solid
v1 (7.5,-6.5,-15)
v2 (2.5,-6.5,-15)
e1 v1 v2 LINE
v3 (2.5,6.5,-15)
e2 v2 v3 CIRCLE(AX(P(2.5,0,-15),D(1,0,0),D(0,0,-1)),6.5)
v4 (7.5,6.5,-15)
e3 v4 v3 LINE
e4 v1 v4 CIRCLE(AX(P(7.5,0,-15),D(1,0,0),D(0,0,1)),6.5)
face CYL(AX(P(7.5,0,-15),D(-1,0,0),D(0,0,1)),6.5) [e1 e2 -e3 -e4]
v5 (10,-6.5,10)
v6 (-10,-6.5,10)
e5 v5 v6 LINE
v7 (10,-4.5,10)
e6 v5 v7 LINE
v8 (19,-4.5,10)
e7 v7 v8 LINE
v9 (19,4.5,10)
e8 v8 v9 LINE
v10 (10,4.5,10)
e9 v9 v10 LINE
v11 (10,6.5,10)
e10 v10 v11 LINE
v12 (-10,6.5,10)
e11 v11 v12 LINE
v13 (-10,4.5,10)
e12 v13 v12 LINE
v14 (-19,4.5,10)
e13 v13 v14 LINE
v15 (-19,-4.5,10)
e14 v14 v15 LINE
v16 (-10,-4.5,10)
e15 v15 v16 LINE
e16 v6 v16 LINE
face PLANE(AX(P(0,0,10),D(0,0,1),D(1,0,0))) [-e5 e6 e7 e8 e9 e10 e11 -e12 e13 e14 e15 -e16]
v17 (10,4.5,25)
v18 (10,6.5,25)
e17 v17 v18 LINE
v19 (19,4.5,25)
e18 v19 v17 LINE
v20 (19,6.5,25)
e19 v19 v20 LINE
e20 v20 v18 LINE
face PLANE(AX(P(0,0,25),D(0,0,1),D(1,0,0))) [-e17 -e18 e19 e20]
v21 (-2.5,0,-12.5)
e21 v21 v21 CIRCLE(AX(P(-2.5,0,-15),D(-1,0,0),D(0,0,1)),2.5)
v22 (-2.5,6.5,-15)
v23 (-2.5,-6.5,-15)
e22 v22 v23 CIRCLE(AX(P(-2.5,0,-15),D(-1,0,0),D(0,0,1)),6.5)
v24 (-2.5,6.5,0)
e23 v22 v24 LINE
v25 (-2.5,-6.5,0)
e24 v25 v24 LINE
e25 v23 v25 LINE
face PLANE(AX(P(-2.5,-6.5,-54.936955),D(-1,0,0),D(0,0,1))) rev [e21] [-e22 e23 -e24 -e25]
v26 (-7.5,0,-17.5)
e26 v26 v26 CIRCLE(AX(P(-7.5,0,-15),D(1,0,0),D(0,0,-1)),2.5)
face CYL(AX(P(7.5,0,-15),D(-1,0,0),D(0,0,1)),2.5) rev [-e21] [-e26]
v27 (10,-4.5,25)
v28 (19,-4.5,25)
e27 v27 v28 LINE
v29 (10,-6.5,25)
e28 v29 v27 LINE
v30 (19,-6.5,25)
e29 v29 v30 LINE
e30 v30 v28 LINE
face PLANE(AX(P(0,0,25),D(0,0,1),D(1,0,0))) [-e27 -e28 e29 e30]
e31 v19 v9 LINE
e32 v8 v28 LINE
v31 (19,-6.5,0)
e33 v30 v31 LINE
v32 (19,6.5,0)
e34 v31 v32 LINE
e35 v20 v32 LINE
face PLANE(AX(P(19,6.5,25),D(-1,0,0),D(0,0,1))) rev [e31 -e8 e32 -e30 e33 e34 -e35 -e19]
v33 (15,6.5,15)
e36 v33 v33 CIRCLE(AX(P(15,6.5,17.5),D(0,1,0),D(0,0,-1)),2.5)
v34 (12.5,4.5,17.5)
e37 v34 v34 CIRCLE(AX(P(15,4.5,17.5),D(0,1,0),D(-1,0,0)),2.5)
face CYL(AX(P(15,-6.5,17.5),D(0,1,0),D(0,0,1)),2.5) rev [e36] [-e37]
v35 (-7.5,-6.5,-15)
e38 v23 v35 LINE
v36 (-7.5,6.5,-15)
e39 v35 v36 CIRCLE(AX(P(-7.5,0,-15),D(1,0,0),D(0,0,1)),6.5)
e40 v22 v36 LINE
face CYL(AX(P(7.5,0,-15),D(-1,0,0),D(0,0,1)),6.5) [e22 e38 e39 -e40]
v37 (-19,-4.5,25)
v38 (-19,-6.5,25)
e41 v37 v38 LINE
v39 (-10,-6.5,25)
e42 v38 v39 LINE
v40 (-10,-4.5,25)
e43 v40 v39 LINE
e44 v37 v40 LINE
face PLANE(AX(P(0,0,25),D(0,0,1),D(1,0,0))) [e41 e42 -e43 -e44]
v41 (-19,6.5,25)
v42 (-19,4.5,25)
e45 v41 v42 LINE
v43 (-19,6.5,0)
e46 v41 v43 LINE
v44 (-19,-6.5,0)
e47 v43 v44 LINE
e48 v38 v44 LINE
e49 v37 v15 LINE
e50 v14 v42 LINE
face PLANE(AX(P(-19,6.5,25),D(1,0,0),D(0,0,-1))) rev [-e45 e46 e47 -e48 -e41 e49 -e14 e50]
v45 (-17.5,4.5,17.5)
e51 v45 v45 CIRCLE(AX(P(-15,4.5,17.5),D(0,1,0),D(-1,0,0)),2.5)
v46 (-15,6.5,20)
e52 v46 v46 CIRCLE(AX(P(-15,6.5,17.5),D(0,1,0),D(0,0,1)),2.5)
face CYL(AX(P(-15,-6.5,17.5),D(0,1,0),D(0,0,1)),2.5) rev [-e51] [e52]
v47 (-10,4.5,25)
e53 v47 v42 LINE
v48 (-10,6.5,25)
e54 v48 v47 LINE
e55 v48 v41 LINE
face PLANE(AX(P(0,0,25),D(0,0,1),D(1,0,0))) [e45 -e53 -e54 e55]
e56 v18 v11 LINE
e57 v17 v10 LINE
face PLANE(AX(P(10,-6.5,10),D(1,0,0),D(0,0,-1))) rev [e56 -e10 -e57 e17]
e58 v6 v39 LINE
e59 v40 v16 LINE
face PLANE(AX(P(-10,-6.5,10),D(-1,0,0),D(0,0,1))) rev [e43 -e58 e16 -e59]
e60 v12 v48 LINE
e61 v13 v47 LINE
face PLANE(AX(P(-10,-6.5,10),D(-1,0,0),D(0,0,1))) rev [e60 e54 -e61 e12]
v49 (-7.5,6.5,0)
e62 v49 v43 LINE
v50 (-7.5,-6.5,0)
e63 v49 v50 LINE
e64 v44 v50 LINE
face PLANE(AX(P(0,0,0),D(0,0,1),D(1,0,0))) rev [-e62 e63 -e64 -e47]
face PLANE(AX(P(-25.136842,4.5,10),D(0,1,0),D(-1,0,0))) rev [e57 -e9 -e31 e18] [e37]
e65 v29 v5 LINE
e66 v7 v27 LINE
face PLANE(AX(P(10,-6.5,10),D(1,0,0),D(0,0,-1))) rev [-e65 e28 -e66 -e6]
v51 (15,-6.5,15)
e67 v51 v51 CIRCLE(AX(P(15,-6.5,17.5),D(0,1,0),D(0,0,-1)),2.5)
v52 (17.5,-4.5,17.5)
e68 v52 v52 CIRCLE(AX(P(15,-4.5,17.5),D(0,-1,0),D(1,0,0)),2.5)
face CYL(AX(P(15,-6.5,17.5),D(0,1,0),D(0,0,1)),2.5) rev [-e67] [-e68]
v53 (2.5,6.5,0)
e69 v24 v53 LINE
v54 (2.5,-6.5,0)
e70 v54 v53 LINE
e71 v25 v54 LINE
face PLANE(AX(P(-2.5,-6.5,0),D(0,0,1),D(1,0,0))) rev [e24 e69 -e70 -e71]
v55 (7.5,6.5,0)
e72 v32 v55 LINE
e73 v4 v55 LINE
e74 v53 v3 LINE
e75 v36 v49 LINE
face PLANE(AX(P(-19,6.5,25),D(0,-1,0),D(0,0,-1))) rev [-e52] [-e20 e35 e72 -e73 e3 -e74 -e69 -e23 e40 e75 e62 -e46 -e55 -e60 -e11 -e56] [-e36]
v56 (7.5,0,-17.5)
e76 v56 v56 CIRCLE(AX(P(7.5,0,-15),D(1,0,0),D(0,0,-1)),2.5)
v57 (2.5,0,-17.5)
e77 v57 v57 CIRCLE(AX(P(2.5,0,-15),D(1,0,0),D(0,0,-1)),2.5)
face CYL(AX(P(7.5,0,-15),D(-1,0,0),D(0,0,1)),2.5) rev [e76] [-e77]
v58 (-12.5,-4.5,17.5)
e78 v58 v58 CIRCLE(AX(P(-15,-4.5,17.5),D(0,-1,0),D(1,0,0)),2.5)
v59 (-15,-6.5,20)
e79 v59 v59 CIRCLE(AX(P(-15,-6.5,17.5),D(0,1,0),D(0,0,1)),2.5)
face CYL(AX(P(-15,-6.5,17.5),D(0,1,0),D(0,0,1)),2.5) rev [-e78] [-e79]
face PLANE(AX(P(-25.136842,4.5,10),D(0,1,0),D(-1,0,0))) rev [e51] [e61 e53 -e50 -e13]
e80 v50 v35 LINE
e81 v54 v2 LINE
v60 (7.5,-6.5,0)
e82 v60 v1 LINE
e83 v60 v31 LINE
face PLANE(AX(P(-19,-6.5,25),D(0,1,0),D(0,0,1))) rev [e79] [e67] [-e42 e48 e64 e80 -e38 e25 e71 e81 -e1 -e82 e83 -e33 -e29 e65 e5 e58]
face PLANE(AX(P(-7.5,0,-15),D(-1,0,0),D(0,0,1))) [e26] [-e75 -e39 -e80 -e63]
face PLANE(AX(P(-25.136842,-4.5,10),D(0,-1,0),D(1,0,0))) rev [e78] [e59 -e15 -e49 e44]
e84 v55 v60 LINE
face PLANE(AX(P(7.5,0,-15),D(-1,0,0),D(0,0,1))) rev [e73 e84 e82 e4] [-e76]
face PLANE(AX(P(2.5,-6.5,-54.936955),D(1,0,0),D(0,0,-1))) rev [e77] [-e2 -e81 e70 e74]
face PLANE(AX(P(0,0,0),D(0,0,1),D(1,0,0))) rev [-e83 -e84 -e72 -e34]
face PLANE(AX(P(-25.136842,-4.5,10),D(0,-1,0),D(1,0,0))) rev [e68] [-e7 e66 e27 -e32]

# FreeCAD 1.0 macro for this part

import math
import FreeCAD as App
import Part
import Sketcher

doc = App.newDocument("Part")
body = doc.addObject("PartDesign::Body", "Body")

# Sketch on XY plane
sketch1 = body.newObject("Sketcher::SketchObject", "Sketch")
sketch1.AttachmentSupport = (doc.getObject("XY_Plane"), [""])
sketch1.MapMode = "FlatFace"
sketch1.addGeometry(Part.LineSegment(App.Vector(-19, 6, 0), App.Vector(-19, -6, 0)), False)
sketch1.addGeometry(Part.LineSegment(App.Vector(-19, -6, 0), App.Vector(19, -6, 0)), False)
sketch1.addGeometry(Part.LineSegment(App.Vector(19, -6, 0), App.Vector(19, 6, 0)), False)
sketch1.addGeometry(Part.LineSegment(App.Vector(19, 6, 0), App.Vector(-19, 6, 0)), False)
sketch1.addConstraint(Sketcher.Constraint("Coincident", 0, 2, 1, 1))
sketch1.addConstraint(Sketcher.Constraint("Coincident", 1, 2, 2, 1))
sketch1.addConstraint(Sketcher.Constraint("Coincident", 2, 2, 3, 1))
sketch1.addConstraint(Sketcher.Constraint("Coincident", 3, 2, 0, 1))
sketch1.addConstraint(Sketcher.Constraint("Vertical", 0))
sketch1.addConstraint(Sketcher.Constraint("Horizontal", 1))
sketch1.addConstraint(Sketcher.Constraint("Vertical", 2))
sketch1.addConstraint(Sketcher.Constraint("Horizontal", 3))
sketch1.addConstraint(Sketcher.Constraint("Symmetric", 0, 2, 2, 2, -1, 1))
sketch1.addConstraint(Sketcher.Constraint("DistanceX", 1, 1, 1, 2, 38.0))
sketch1.addConstraint(Sketcher.Constraint("DistanceY", 0, 2, 0, 1, 13.0))
pad1 = body.newObject("PartDesign::Pad", "Pad")
pad1.Profile = sketch1
pad1.Length = 25

# Sketch on XY plane
sketch2 = body.newObject("Sketcher::SketchObject", "Sketch001")
sketch2.AttachmentSupport = (doc.getObject("XY_Plane"), [""])
sketch2.MapMode = "FlatFace"
sketch2.AttachmentOffset = App.Placement(App.Vector(0, 0, 25), App.Rotation())
sketch2.addGeometry(Part.LineSegment(App.Vector(-25, 4, 0), App.Vector(-25, -4, 0)), False)
sketch2.addGeometry(Part.LineSegment(App.Vector(-25, -4, 0), App.Vector(25, -4, 0)), False)
sketch2.addGeometry(Part.LineSegment(App.Vector(25, -4, 0), App.Vector(25, 4, 0)), False)
sketch2.addGeometry(Part.LineSegment(App.Vector(25, 4, 0), App.Vector(-25, 4, 0)), False)
sketch2.addConstraint(Sketcher.Constraint("Coincident", 0, 2, 1, 1))
sketch2.addConstraint(Sketcher.Constraint("Coincident", 1, 2, 2, 1))
sketch2.addConstraint(Sketcher.Constraint("Coincident", 2, 2, 3, 1))
sketch2.addConstraint(Sketcher.Constraint("Coincident", 3, 2, 0, 1))
sketch2.addConstraint(Sketcher.Constraint("Vertical", 0))
sketch2.addConstraint(Sketcher.Constraint("Horizontal", 1))
sketch2.addConstraint(Sketcher.Constraint("Vertical", 2))
sketch2.addConstraint(Sketcher.Constraint("Horizontal", 3))
sketch2.addConstraint(Sketcher.Constraint("Symmetric", 0, 2, 2, 2, -1, 1))
sketch2.addConstraint(Sketcher.Constraint("DistanceY", 0, 2, 0, 1, 9.0))
sketch2.addConstraint(Sketcher.Constraint("DistanceX", 1, 1, 1, 2, 50.273684))
pocket1 = body.newObject("PartDesign::Pocket", "Pocket")
pocket1.Profile = sketch2
pocket1.Length = 15

# Sketch on XZ plane
sketch3 = body.newObject("Sketcher::SketchObject", "Sketch002")
sketch3.AttachmentSupport = (doc.getObject("XZ_Plane"), [""])
sketch3.MapMode = "FlatFace"
sketch3.AttachmentOffset = App.Placement(App.Vector(0, 0, -6.5), App.Rotation())
sketch3.addGeometry(Part.LineSegment(App.Vector(-10, 10, 0), App.Vector(-10, 40, 0)), False)
sketch3.addGeometry(Part.LineSegment(App.Vector(-10, 40, 0), App.Vector(10, 40, 0)), False)
sketch3.addGeometry(Part.LineSegment(App.Vector(10, 40, 0), App.Vector(10, 10, 0)), False)
sketch3.addGeometry(Part.LineSegment(App.Vector(10, 10, 0), App.Vector(-10, 10, 0)), False)
sketch3.addConstraint(Sketcher.Constraint("Coincident", 0, 2, 1, 1))
sketch3.addConstraint(Sketcher.Constraint("Coincident", 1, 2, 2, 1))
sketch3.addConstraint(Sketcher.Constraint("Coincident", 2, 2, 3, 1))
sketch3.addConstraint(Sketcher.Constraint("Coincident", 3, 2, 0, 1))
sketch3.addConstraint(Sketcher.Constraint("Vertical", 0))
sketch3.addConstraint(Sketcher.Constraint("Horizontal", 1))
sketch3.addConstraint(Sketcher.Constraint("Vertical", 2))
sketch3.addConstraint(Sketcher.Constraint("Horizontal", 3))
sketch3.addConstraint(Sketcher.Constraint("DistanceX", 1, 1, 1, 2, 20.0))
sketch3.addConstraint(Sketcher.Constraint("DistanceY", 0, 1, 0, 2, 30.0))
sketch3.addConstraint(Sketcher.Constraint("DistanceX", 0, 2, -1, 1, 10.0))
sketch3.addConstraint(Sketcher.Constraint("DistanceY", -1, 1, 0, 2, 40.0))
pocket2 = body.newObject("PartDesign::Pocket", "Pocket001")
pocket2.Profile = sketch3
pocket2.Type = "ThroughAll"
pocket2.Reversed = True

# Sketch on XZ plane
sketch4 = body.newObject("Sketcher::SketchObject", "Sketch003")
sketch4.AttachmentSupport = (doc.getObject("XZ_Plane"), [""])
sketch4.MapMode = "FlatFace"
sketch4.AttachmentOffset = App.Placement(App.Vector(0, 0, -6.5), App.Rotation())
sketch4.addGeometry(Part.Circle(App.Vector(-15, 17.5, 0), App.Vector(0, 0, 1), 2.5), False)
sketch4.addGeometry(Part.Circle(App.Vector(15, 17.5, 0), App.Vector(0, 0, 1), 2.5), False)
sketch4.addConstraint(Sketcher.Constraint("Equal", 0, 1))
sketch4.addConstraint(Sketcher.Constraint("Symmetric", 0, 3, 1, 3, -2))
sketch4.addConstraint(Sketcher.Constraint("Diameter", 0, 5.0))
sketch4.addConstraint(Sketcher.Constraint("DistanceX", 0, 3, -1, 1, 15.0))
sketch4.addConstraint(Sketcher.Constraint("DistanceY", -1, 1, 0, 3, 17.5))
pocket3 = body.newObject("PartDesign::Pocket", "Pocket002")
pocket3.Profile = sketch4
pocket3.Type = "ThroughAll"
pocket3.Reversed = True

# Sketch on YZ plane
sketch5 = body.newObject("Sketcher::SketchObject", "Sketch004")
sketch5.AttachmentSupport = (doc.getObject("YZ_Plane"), [""])
sketch5.MapMode = "FlatFace"
sketch5.addGeometry(Part.LineSegment(App.Vector(-6.5, 0, 0), App.Vector(-6.5, -15, 0)), False)
sketch5.addGeometry(Part.ArcOfCircle(Part.Circle(App.Vector(0, -15, 0), App.Vector(0, 0, 1), 6.5), math.radians(180), math.radians(360)), False)
sketch5.addGeometry(Part.LineSegment(App.Vector(6.5, -15, 0), App.Vector(6.5, 0, 0)), False)
sketch5.addGeometry(Part.LineSegment(App.Vector(6.5, 0, 0), App.Vector(-6.5, 0, 0)), False)
sketch5.addGeometry(Part.Circle(App.Vector(0, -15, 0), App.Vector(0, 0, 1), 2.5), False)
sketch5.addConstraint(Sketcher.Constraint("Tangent", 0, 2, 1, 1))
sketch5.addConstraint(Sketcher.Constraint("Tangent", 1, 2, 2, 1))
sketch5.addConstraint(Sketcher.Constraint("Coincident", 2, 2, 3, 1))
sketch5.addConstraint(Sketcher.Constraint("Coincident", 3, 2, 0, 1))
sketch5.addConstraint(Sketcher.Constraint("Vertical", 0))
sketch5.addConstraint(Sketcher.Constraint("Vertical", 2))
sketch5.addConstraint(Sketcher.Constraint("Horizontal", 3))
sketch5.addConstraint(Sketcher.Constraint("Coincident", 4, 3, 1, 3))
sketch5.addConstraint(Sketcher.Constraint("Symmetric", 2, 2, 3, 2, -1, 1))
sketch5.addConstraint(Sketcher.Constraint("Diameter", 4, 5.0))
sketch5.addConstraint(Sketcher.Constraint("Radius", 1, 6.5))
sketch5.addConstraint(Sketcher.Constraint("DistanceY", 0, 2, 0, 1, 15.0))
pad2 = body.newObject("PartDesign::Pad", "Pad001")
pad2.Profile = sketch5
pad2.Length = 15
pad2.Midplane = True

# Sketch on XZ plane
sketch6 = body.newObject("Sketcher::SketchObject", "Sketch005")
sketch6.AttachmentSupport = (doc.getObject("XZ_Plane"), [""])
sketch6.MapMode = "FlatFace"
sketch6.AttachmentOffset = App.Placement(App.Vector(0, 0, -6.5), App.Rotation())
sketch6.addGeometry(Part.LineSegment(App.Vector(-2, -55, 0), App.Vector(-2, 0, 0)), False)
sketch6.addGeometry(Part.LineSegment(App.Vector(-2, 0, 0), App.Vector(2, 0, 0)), False)
sketch6.addGeometry(Part.LineSegment(App.Vector(2, 0, 0), App.Vector(2, -55, 0)), False)
sketch6.addGeometry(Part.LineSegment(App.Vector(2, -55, 0), App.Vector(-2, -55, 0)), False)
sketch6.addConstraint(Sketcher.Constraint("Coincident", 0, 2, 1, 1))
sketch6.addConstraint(Sketcher.Constraint("Coincident", 1, 2, 2, 1))
sketch6.addConstraint(Sketcher.Constraint("Coincident", 2, 2, 3, 1))
sketch6.addConstraint(Sketcher.Constraint("Coincident", 3, 2, 0, 1))
sketch6.addConstraint(Sketcher.Constraint("Vertical", 0))
sketch6.addConstraint(Sketcher.Constraint("Horizontal", 1))
sketch6.addConstraint(Sketcher.Constraint("Vertical", 2))
sketch6.addConstraint(Sketcher.Constraint("Horizontal", 3))
sketch6.addConstraint(Sketcher.Constraint("Symmetric", 0, 2, 1, 2, -1, 1))
sketch6.addConstraint(Sketcher.Constraint("DistanceX", 1, 1, 1, 2, 5.0))
sketch6.addConstraint(Sketcher.Constraint("DistanceY", 0, 1, 0, 2, 54.936955))
pocket4 = body.newObject("PartDesign::Pocket", "Pocket003")
pocket4.Profile = sketch6
pocket4.Type = "ThroughAll"
pocket4.Reversed = True

doc.recompute()
